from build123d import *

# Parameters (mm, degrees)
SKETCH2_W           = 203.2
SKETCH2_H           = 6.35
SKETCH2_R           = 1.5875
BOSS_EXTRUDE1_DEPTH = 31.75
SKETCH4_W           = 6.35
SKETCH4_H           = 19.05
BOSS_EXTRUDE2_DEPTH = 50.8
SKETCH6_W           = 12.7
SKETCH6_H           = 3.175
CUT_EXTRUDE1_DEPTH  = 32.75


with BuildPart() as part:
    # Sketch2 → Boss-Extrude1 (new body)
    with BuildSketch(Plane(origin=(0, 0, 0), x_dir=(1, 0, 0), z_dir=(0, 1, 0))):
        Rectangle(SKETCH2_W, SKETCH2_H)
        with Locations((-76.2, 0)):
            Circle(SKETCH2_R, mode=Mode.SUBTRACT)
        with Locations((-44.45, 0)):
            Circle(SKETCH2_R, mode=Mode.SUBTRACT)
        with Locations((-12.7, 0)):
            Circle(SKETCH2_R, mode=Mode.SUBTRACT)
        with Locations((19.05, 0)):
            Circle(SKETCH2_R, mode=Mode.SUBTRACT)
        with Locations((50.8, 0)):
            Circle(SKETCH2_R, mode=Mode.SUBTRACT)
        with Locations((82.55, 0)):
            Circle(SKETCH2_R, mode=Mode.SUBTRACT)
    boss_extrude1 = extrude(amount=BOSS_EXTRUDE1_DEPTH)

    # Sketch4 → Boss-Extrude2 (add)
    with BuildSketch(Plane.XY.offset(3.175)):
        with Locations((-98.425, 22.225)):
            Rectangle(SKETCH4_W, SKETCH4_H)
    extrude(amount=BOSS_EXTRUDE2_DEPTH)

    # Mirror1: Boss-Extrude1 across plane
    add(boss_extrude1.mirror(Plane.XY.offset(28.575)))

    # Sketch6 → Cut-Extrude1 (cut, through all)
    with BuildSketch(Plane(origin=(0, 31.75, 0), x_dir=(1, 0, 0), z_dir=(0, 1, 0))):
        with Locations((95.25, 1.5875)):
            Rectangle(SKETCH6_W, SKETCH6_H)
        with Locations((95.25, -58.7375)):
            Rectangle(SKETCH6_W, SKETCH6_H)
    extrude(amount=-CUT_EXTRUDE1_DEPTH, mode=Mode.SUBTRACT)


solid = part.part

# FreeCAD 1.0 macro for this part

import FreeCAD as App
import Part
import Sketcher
Q = App.Units.Quantity

doc = App.newDocument("Part")
body = doc.addObject("PartDesign::Body", "Body")

# Sketch on XZ plane
sketch1 = body.newObject("Sketcher::SketchObject", "Sketch")
sketch1.AttachmentSupport = (doc.getObject("XZ_Plane"), [""])
sketch1.MapMode = "FlatFace"
sketch1.addGeometry(Part.LineSegment(App.Vector(-101.6, -3.2, 0), App.Vector(-101.6, 3.2, 0)), False)
sketch1.addGeometry(Part.LineSegment(App.Vector(-101.6, 3.2, 0), App.Vector(101.6, 3.2, 0)), False)
sketch1.addGeometry(Part.LineSegment(App.Vector(101.6, 3.2, 0), App.Vector(101.6, -3.2, 0)), False)
sketch1.addGeometry(Part.LineSegment(App.Vector(101.6, -3.2, 0), App.Vector(-101.6, -3.2, 0)), False)
sketch1.addGeometry(Part.Circle(App.Vector(-76.2, 0, 0), App.Vector(0, 0, 1), 1.6), False)
sketch1.addGeometry(Part.Circle(App.Vector(-44.5, 0, 0), App.Vector(0, 0, 1), 1.6), False)
sketch1.addGeometry(Part.Circle(App.Vector(-12.7, 0, 0), App.Vector(0, 0, 1), 1.6), False)
sketch1.addGeometry(Part.Circle(App.Vector(19.1, 0, 0), App.Vector(0, 0, 1), 1.6), False)
sketch1.addGeometry(Part.Circle(App.Vector(50.8, 0, 0), App.Vector(0, 0, 1), 1.6), False)
sketch1.addGeometry(Part.Circle(App.Vector(82.5, 0, 0), App.Vector(0, 0, 1), 1.6), False)
sketch1.addConstraint(Sketcher.Constraint("Coincident", 0, 2, 1, 1))
sketch1.addConstraint(Sketcher.Constraint("Coincident", 1, 2, 2, 1))
sketch1.addConstraint(Sketcher.Constraint("Coincident", 2, 2, 3, 1))
sketch1.addConstraint(Sketcher.Constraint("Coincident", 3, 2, 0, 1))
sketch1.addConstraint(Sketcher.Constraint("Vertical", 0))
sketch1.addConstraint(Sketcher.Constraint("Horizontal", 1))
sketch1.addConstraint(Sketcher.Constraint("Vertical", 2))
sketch1.addConstraint(Sketcher.Constraint("Horizontal", 3))
sketch1.addConstraint(Sketcher.Constraint("Equal", 4, 5))
sketch1.addConstraint(Sketcher.Constraint("Equal", 5, 6))
sketch1.addConstraint(Sketcher.Constraint("Equal", 6, 7))
sketch1.addConstraint(Sketcher.Constraint("Equal", 7, 8))
sketch1.addConstraint(Sketcher.Constraint("Equal", 8, 9))
sketch1.addConstraint(Sketcher.Constraint("Symmetric", 0, 2, 2, 2, -1, 1))
sketch1.addConstraint(Sketcher.Constraint("PointOnObject", 4, 3, -1))
sketch1.addConstraint(Sketcher.Constraint("PointOnObject", 5, 3, -1))
sketch1.addConstraint(Sketcher.Constraint("PointOnObject", 6, 3, -1))
sketch1.addConstraint(Sketcher.Constraint("PointOnObject", 7, 3, -1))
sketch1.addConstraint(Sketcher.Constraint("PointOnObject", 8, 3, -1))
sketch1.addConstraint(Sketcher.Constraint("PointOnObject", 9, 3, -1))
sketch1.addConstraint(Sketcher.Constraint("DistanceX", 1, 1, 1, 2, Q("8 in")))
sketch1.addConstraint(Sketcher.Constraint("Diameter", 4, Q("0.125 in")))
sketch1.addConstraint(Sketcher.Constraint("DistanceX", 4, 3, -1, 1, Q("3 in")))
sketch1.addConstraint(Sketcher.Constraint("DistanceX", -1, 1, 8, 3, Q("2 in")))
sketch1.addConstraint(Sketcher.Constraint("DistanceX", 5, 3, 9, 3, Q("5 in")))
sketch1.addConstraint(Sketcher.Constraint("DistanceY", 0, 1, 0, 2, Q("0.25 in")))
sketch1.addConstraint(Sketcher.Constraint("DistanceX", 6, 3, -1, 1, Q("0.5 in")))
sketch1.addConstraint(Sketcher.Constraint("DistanceX", 5, 3, 7, 3, Q("2.5 in")))
sketch1.addConstraint(Sketcher.Constraint("DistanceX", 5, 3, -1, 1, Q("1.75 in")))
pad1 = body.newObject("PartDesign::Pad", "Pad")
pad1.Profile = sketch1
pad1.Length = Q("1.25 in")
pad1.Reversed = True

# Sketch on XY plane
sketch2 = body.newObject("Sketcher::SketchObject", "Sketch001")
sketch2.AttachmentSupport = (doc.getObject("XY_Plane"), [""])
sketch2.MapMode = "FlatFace"
sketch2.AttachmentOffset = App.Placement(App.Vector(0, 0, 0.125 * 25.4), App.Rotation())
sketch2.addGeometry(Part.LineSegment(App.Vector(-102, 32, 0), App.Vector(-102, 13, 0)), False)
sketch2.addGeometry(Part.LineSegment(App.Vector(-102, 13, 0), App.Vector(-95, 13, 0)), False)
sketch2.addGeometry(Part.LineSegment(App.Vector(-95, 13, 0), App.Vector(-95, 32, 0)), False)
sketch2.addGeometry(Part.LineSegment(App.Vector(-95, 32, 0), App.Vector(-102, 32, 0)), False)
sketch2.addConstraint(Sketcher.Constraint("Coincident", 0, 2, 1, 1))
sketch2.addConstraint(Sketcher.Constraint("Coincident", 1, 2, 2, 1))
sketch2.addConstraint(Sketcher.Constraint("Coincident", 2, 2, 3, 1))
sketch2.addConstraint(Sketcher.Constraint("Coincident", 3, 2, 0, 1))
sketch2.addConstraint(Sketcher.Constraint("Vertical", 0))
sketch2.addConstraint(Sketcher.Constraint("Horizontal", 1))
sketch2.addConstraint(Sketcher.Constraint("Vertical", 2))
sketch2.addConstraint(Sketcher.Constraint("Horizontal", 3))
sketch2.addConstraint(Sketcher.Constraint("DistanceX", 0, 2, -1, 1, Q("4 in")))
sketch2.addConstraint(Sketcher.Constraint("DistanceX", 1, 1, 1, 2, Q("0.25 in")))
sketch2.addConstraint(Sketcher.Constraint("DistanceY", 0, 2, 0, 1, Q("0.75 in")))
sketch2.addConstraint(Sketcher.Constraint("DistanceY", -1, 1, 0, 2, Q("0.5 in")))
pad2 = body.newObject("PartDesign::Pad", "Pad001")
pad2.Profile = sketch2
pad2.Length = Q("2 in")
doc.recompute()

datumplane = body.newObject("PartDesign::Plane", "DatumPlane")
datumplane.AttachmentSupport = (doc.getObject("XY_Plane"), [""])
datumplane.MapMode = "FlatFace"
datumplane.AttachmentOffset = App.Placement(App.Vector(0, 0, 1.125 * 25.4), App.Rotation())
mirrored = body.newObject("PartDesign::Mirrored", "Mirrored")
mirrored.Originals = [pad1]
mirrored.MirrorPlane = (datumplane, [""])
body.Tip = mirrored

# Sketch on XZ plane
sketch3 = body.newObject("Sketcher::SketchObject", "Sketch002")
sketch3.AttachmentSupport = (doc.getObject("XZ_Plane"), [""])
sketch3.MapMode = "FlatFace"
sketch3.AttachmentOffset = App.Placement(App.Vector(0, 0, -1.25 * 25.4), App.Rotation())
sketch3.addGeometry(Part.LineSegment(App.Vector(88.9, -3.2, 0), App.Vector(88.9, 0, 0)), False)
sketch3.addGeometry(Part.LineSegment(App.Vector(88.9, 0, 0), App.Vector(101.6, 0, 0)), False)
sketch3.addGeometry(Part.LineSegment(App.Vector(101.6, 0, 0), App.Vector(101.6, -3.2, 0)), False)
sketch3.addGeometry(Part.LineSegment(App.Vector(101.6, -3.2, 0), App.Vector(88.9, -3.2, 0)), False)
sketch3.addGeometry(Part.LineSegment(App.Vector(88.9, 57.1, 0), App.Vector(88.9, 60.3, 0)), False)
sketch3.addGeometry(Part.LineSegment(App.Vector(88.9, 60.3, 0), App.Vector(101.6, 60.3, 0)), False)
sketch3.addGeometry(Part.LineSegment(App.Vector(101.6, 60.3, 0), App.Vector(101.6, 57.1, 0)), False)
sketch3.addGeometry(Part.LineSegment(App.Vector(101.6, 57.1, 0), App.Vector(88.9, 57.1, 0)), False)
sketch3.addConstraint(Sketcher.Constraint("Coincident", 0, 2, 1, 1))
sketch3.addConstraint(Sketcher.Constraint("Coincident", 1, 2, 2, 1))
sketch3.addConstraint(Sketcher.Constraint("Coincident", 2, 2, 3, 1))
sketch3.addConstraint(Sketcher.Constraint("Coincident", 3, 2, 0, 1))
sketch3.addConstraint(Sketcher.Constraint("Coincident", 4, 2, 5, 1))
sketch3.addConstraint(Sketcher.Constraint("Coincident", 5, 2, 6, 1))
sketch3.addConstraint(Sketcher.Constraint("Coincident", 6, 2, 7, 1))
sketch3.addConstraint(Sketcher.Constraint("Coincident", 7, 2, 4, 1))
sketch3.addConstraint(Sketcher.Constraint("Vertical", 0))
sketch3.addConstraint(Sketcher.Constraint("Horizontal", 1))
sketch3.addConstraint(Sketcher.Constraint("Vertical", 2))
sketch3.addConstraint(Sketcher.Constraint("Horizontal", 3))
sketch3.addConstraint(Sketcher.Constraint("Vertical", 4))
sketch3.addConstraint(Sketcher.Constraint("Horizontal", 5))
sketch3.addConstraint(Sketcher.Constraint("Vertical", 6))
sketch3.addConstraint(Sketcher.Constraint("Horizontal", 7))
sketch3.addConstraint(Sketcher.Constraint("PointOnObject", 0, 2, -1))
sketch3.addConstraint(Sketcher.Constraint("Vertical", 3, 2, 4, 2))
sketch3.addConstraint(Sketcher.Constraint("Vertical", 2, 2, 5, 2))
sketch3.addConstraint(Sketcher.Constraint("Equal", 2, 4))
sketch3.addConstraint(Sketcher.Constraint("DistanceX", 1, 1, 1, 2, Q("0.5 in")))
sketch3.addConstraint(Sketcher.Constraint("DistanceX", -1, 1, 1, 2, Q("4 in")))
sketch3.addConstraint(Sketcher.Constraint("DistanceY", 3, 2, 4, 2, Q("2.5 in")))
sketch3.addConstraint(Sketcher.Constraint("DistanceY", 0, 1, 0, 2, Q("0.125 in")))
pocket1 = body.newObject("PartDesign::Pocket", "Pocket")
pocket1.Profile = sketch3
pocket1.Type = "ThroughAll"
pocket1.Reversed = True

doc.recompute()
